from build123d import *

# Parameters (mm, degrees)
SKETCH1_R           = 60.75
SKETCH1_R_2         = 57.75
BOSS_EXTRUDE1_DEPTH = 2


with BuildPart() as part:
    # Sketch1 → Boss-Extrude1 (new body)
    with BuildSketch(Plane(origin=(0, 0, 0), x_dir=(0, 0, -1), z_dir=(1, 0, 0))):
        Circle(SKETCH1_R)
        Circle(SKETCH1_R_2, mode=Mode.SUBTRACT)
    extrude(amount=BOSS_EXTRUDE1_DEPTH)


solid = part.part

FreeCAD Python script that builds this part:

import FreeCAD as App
import Part
import Sketcher

doc = App.newDocument("Part")
body = doc.addObject("PartDesign::Body", "Body")

# Sketch on YZ plane
sketch1 = doc.addObject("Sketcher::SketchObject", "Sketch")
body.addObject(sketch1)
sketch1.AttachmentSupport = (doc.YZ_Plane, [""])
sketch1.MapMode = "FlatFace"
sketch1.addGeometry(Part.Circle(App.Vector(0, 0, 0), App.Vector(0, 0, 1), 61), False)
sketch1.addGeometry(Part.Circle(App.Vector(0, 0, 0), App.Vector(0, 0, 1), 58), False)
sketch1.addConstraint(Sketcher.Constraint("Coincident", 0, 3, -1, 1))
sketch1.addConstraint(Sketcher.Constraint("Coincident", 1, 3, -1, 1))
sketch1.addConstraint(Sketcher.Constraint("Diameter", 0, 121.5))
sketch1.addConstraint(Sketcher.Constraint("Diameter", 1, 115.5))
pad1 = doc.addObject("PartDesign::Pad", "Pad")
body.addObject(pad1)
pad1.Profile = sketch1
pad1.Length = 2

doc.recompute()
